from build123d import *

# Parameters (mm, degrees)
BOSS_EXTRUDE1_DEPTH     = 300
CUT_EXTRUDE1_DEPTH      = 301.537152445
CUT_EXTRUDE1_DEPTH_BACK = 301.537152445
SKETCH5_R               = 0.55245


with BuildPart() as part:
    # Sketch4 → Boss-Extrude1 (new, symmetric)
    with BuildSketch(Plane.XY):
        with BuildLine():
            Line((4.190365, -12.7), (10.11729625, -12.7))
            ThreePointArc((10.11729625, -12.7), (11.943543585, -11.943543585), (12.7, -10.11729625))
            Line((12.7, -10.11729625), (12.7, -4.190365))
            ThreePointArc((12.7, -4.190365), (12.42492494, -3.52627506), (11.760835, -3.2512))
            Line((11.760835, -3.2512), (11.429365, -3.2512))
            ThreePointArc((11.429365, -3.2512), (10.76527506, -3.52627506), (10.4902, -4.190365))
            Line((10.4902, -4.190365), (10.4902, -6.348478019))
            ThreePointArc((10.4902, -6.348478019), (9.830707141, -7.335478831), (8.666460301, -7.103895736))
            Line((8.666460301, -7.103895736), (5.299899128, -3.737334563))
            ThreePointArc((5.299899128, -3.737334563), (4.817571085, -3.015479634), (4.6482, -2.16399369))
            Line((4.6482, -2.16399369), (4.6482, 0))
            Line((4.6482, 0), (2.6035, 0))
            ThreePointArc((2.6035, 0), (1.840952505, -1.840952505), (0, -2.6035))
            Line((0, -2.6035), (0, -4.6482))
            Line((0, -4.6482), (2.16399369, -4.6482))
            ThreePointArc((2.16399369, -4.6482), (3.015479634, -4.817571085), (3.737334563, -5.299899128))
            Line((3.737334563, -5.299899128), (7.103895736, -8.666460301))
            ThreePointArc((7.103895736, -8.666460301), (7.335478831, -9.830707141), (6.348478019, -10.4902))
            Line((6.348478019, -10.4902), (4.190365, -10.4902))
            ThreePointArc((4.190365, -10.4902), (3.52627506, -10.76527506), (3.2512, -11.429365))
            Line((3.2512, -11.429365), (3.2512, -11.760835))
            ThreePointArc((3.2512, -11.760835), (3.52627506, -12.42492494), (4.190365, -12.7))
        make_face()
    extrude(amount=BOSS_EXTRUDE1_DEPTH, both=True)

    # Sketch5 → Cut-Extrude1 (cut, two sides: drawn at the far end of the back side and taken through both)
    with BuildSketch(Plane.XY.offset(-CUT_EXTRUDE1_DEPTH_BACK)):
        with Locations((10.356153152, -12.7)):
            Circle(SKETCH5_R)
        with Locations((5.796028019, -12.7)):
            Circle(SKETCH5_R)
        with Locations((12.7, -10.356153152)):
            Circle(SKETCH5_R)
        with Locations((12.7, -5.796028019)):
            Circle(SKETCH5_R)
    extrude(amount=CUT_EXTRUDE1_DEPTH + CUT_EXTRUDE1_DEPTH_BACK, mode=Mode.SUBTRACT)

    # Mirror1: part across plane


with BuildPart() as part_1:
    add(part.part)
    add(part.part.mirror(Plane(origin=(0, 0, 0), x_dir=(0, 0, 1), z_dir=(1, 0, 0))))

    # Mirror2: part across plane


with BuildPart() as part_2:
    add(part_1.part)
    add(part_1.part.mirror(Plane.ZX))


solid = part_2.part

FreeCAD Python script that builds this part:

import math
import FreeCAD as App
import Part
import Sketcher
from FreeCAD import Vector
Q = App.Units.Quantity

doc = App.newDocument("Part")
params = doc.addObject("Spreadsheet::Sheet", "Params")
for row, (alias, value) in enumerate([
    ("pad1_length", "600 mm"),
], start=1):
    params.set(f"A{row}", alias)
    params.set(f"B{row}", "=" + value)
    params.setAlias(f"B{row}", alias)

body = doc.addObject("PartDesign::Body", "Body")

sketch1 = body.newObject("Sketcher::SketchObject", "Sketch")
sketch1.AttachmentSupport = (doc.getObject("XY_Plane"), [""])
sketch1.MapMode = "FlatFace"
sketch1.addGeometry([
    Part.LineSegment(Vector(4.19, -12.7, 0), Vector(10.12, -12.7, 0)),
    Part.ArcOfCircle(Part.Circle(Vector(10.12, -10.12, 0), Vector(0, 0, 1), 2.58), math.radians(-90), math.radians(0)),
    Part.LineSegment(Vector(12.7, -10.12, 0), Vector(12.7, -4.19, 0)),
    Part.ArcOfCircle(Part.Circle(Vector(11.76, -4.19, 0), Vector(0, 0, 1), 0.94), math.radians(0), math.radians(90)),
    Part.LineSegment(Vector(11.76, -3.25, 0), Vector(11.43, -3.25, 0)),
    Part.ArcOfCircle(Part.Circle(Vector(11.43, -4.19, 0), Vector(0, 0, 1), 0.94), math.radians(90), math.radians(180)),
    Part.LineSegment(Vector(10.49, -4.19, 0), Vector(10.49, -6.35, 0)),
    Part.ArcOfCircle(Part.Circle(Vector(9.42, -6.35, 0), Vector(0, 0, 1), 1.07), math.radians(-135), math.radians(0)),
    Part.LineSegment(Vector(8.67, -7.1, 0), Vector(5.3, -3.74, 0)),
    Part.ArcOfCircle(Part.Circle(Vector(6.87, -2.16, 0), Vector(0, 0, 1), 2.23), math.radians(-180), math.radians(-135)),
    Part.LineSegment(Vector(4.65, -2.16, 0), Vector(4.65, 0, 0)),
    Part.LineSegment(Vector(4.65, 0, 0), Vector(2.6, 0, 0)),
    Part.ArcOfCircle(Part.Circle(Vector(0, 0, 0), Vector(0, 0, 1), 2.6), math.radians(-90), math.radians(0)),
    Part.LineSegment(Vector(0, -2.6, 0), Vector(0, -4.65, 0)),
    Part.LineSegment(Vector(0, -4.65, 0), Vector(2.16, -4.65, 0)),
    Part.ArcOfCircle(Part.Circle(Vector(2.16, -6.87, 0), Vector(0, 0, 1), 2.23), math.radians(45), math.radians(90)),
    Part.LineSegment(Vector(3.74, -5.3, 0), Vector(7.1, -8.67, 0)),
    Part.ArcOfCircle(Part.Circle(Vector(6.35, -9.42, 0), Vector(0, 0, 1), 1.07), math.radians(-90), math.radians(45)),
    Part.LineSegment(Vector(6.35, -10.49, 0), Vector(4.19, -10.49, 0)),
    Part.ArcOfCircle(Part.Circle(Vector(4.19, -11.43, 0), Vector(0, 0, 1), 0.94), math.radians(90), math.radians(180)),
    Part.LineSegment(Vector(3.25, -11.43, 0), Vector(3.25, -11.76, 0)),
    Part.ArcOfCircle(Part.Circle(Vector(4.19, -11.76, 0), Vector(0, 0, 1), 0.94), math.radians(-180), math.radians(-90)),
], False)
sketch1.addConstraint([
    Sketcher.Constraint("Tangent", 0, 2, 1, 1),
    Sketcher.Constraint("Tangent", 1, 2, 2, 1),
    Sketcher.Constraint("Tangent", 2, 2, 3, 1),
    Sketcher.Constraint("Tangent", 3, 2, 4, 1),
    Sketcher.Constraint("Tangent", 4, 2, 5, 1),
    Sketcher.Constraint("Tangent", 5, 2, 6, 1),
    Sketcher.Constraint("Tangent", 6, 2, 7, 2),
    Sketcher.Constraint("Tangent", 7, 1, 8, 1),
    Sketcher.Constraint("Tangent", 8, 2, 9, 2),
    Sketcher.Constraint("Tangent", 9, 1, 10, 1),
    Sketcher.Constraint("Coincident", 10, 2, 11, 1),
    Sketcher.Constraint("Coincident", 11, 2, 12, 2),
    Sketcher.Constraint("Coincident", 12, 1, 13, 1),
    Sketcher.Constraint("Coincident", 13, 2, 14, 1),
    Sketcher.Constraint("Tangent", 14, 2, 15, 2),
    Sketcher.Constraint("Tangent", 15, 1, 16, 1),
    Sketcher.Constraint("Tangent", 16, 2, 17, 2),
    Sketcher.Constraint("Tangent", 17, 1, 18, 1),
    Sketcher.Constraint("Tangent", 18, 2, 19, 1),
    Sketcher.Constraint("Tangent", 19, 2, 20, 1),
    Sketcher.Constraint("Tangent", 20, 2, 21, 1),
    Sketcher.Constraint("Tangent", 21, 2, 0, 1),
    Sketcher.Constraint("Horizontal", 0),
    Sketcher.Constraint("Vertical", 2),
    Sketcher.Constraint("Horizontal", 4),
    Sketcher.Constraint("Vertical", 6),
    Sketcher.Constraint("Vertical", 10),
    Sketcher.Constraint("Horizontal", 11),
    Sketcher.Constraint("Vertical", 13),
    Sketcher.Constraint("Horizontal", 14),
    Sketcher.Constraint("Horizontal", 18),
    Sketcher.Constraint("Vertical", 20),
    Sketcher.Constraint("Coincident", 12, 3, -1, 1),
    Sketcher.Constraint("Equal", 3, 5),
    Sketcher.Constraint("Equal", 9, 15),
    Sketcher.Constraint("Equal", 7, 17),
    Sketcher.Constraint("Equal", 5, 19),
    Sketcher.Constraint("Equal", 19, 21),
    Sketcher.Constraint("PointOnObject", 10, 2, -1),
    Sketcher.Constraint("PointOnObject", 12, 1, -2),
    Sketcher.Constraint("Parallel", 8, 16),
    Sketcher.Constraint("Equal", 0, 2),
    Sketcher.Constraint("Equal", 18, 6),
    Sketcher.Constraint("Equal", 14, 10),
    Sketcher.Constraint("Equal", 11, 13),
    Sketcher.Constraint("Equal", 4, 20),
    Sketcher.Constraint("Equal", 8, 16),
    Sketcher.Constraint("DistanceY", 0, 2, -1, 1, Q("12.7 mm")),
    Sketcher.Constraint("Radius", 12, Q("2.6035 mm")),
    Sketcher.Constraint("Radius", 7, Q("1.068322 mm")),
    Sketcher.Constraint("Radius", 9, Q("2.22504 mm")),
    Sketcher.Constraint("DistanceX", 11, 2, 11, 1, Q("2.0447 mm")),
    Sketcher.Constraint("Radius", 1, Q("2.582704 mm")),
    Sketcher.Constraint("Radius", 3, Q("0.939165 mm")),
    Sketcher.Constraint("DistanceX", 9, 1, 5, 2, Q("5.842 mm")),
    Sketcher.Constraint("DistanceX", 0, 1, 0, 2, Q("5.926931 mm")),
    Sketcher.Constraint("DistanceX", 17, 3, 7, 3, Q("3.0734 mm")),
])
pad1 = body.newObject("PartDesign::Pad", "Pad")
pad1.Profile = sketch1
pad1.setExpression("Length", "Params.pad1_length")
pad1.Midplane = True

sketch2 = body.newObject("Sketcher::SketchObject", "Sketch001")
sketch2.AttachmentSupport = (doc.getObject("XY_Plane"), [""])
sketch2.MapMode = "FlatFace"
sketch2.addGeometry([
    Part.Circle(Vector(10.4, -12.7, 0), Vector(0, 0, 1), 0.6),
    Part.Circle(Vector(5.8, -12.7, 0), Vector(0, 0, 1), 0.6),
    Part.Circle(Vector(12.7, -10.4, 0), Vector(0, 0, 1), 0.6),
    Part.Circle(Vector(12.7, -5.8, 0), Vector(0, 0, 1), 0.6),
], False)
sketch2.addConstraint([
    Sketcher.Constraint("Equal", 0, 1),
    Sketcher.Constraint("Equal", 1, 2),
    Sketcher.Constraint("Equal", 2, 3),
    Sketcher.Constraint("Horizontal", 0, 3, 1, 3),
    Sketcher.Constraint("Vertical", 2, 3, 3, 3),
    Sketcher.Constraint("Diameter", 0, Q("1.1049 mm")),
    Sketcher.Constraint("DistanceY", 0, 3, -1, 1, Q("12.7 mm")),
    Sketcher.Constraint("DistanceX", -1, 1, 2, 3, Q("12.7 mm")),
    Sketcher.Constraint("DistanceX", -1, 1, 1, 3, Q("5.796028 mm")),
    Sketcher.Constraint("DistanceY", 3, 3, -1, 1, Q("5.796028 mm")),
    Sketcher.Constraint("DistanceX", -1, 1, 0, 3, Q("10.356153 mm")),
    Sketcher.Constraint("DistanceY", 2, 3, -1, 1, Q("10.356153 mm")),
])
pocket1 = body.newObject("PartDesign::Pocket", "Pocket")
pocket1.Profile = sketch2
pocket1.Type = "ThroughAll"
pocket1.Midplane = True
body2 = doc.addObject("PartDesign::Body", "Body001")
doc.recompute()

body2.BaseFeature = body
doc.recompute()

mirroring = doc.addObject("Part::Mirroring", "Mirroring")
mirroring.Source = body
mirroring.Base = Vector(0, 0, 0)
mirroring.Normal = Vector(1, 0, 0)
body3 = doc.addObject("PartDesign::Body", "Body002")
body3.BaseFeature = mirroring
boolean = body2.newObject("PartDesign::Boolean", "Boolean")
boolean.Type = "Fuse"
boolean.addObjects([body3])
doc.recompute()
body4 = doc.addObject("PartDesign::Body", "Body003")
doc.recompute()

body4.BaseFeature = body2
doc.recompute()

mirroring2 = doc.addObject("Part::Mirroring", "Mirroring001")
mirroring2.Source = body2
mirroring2.Base = Vector(0, 0, 0)
mirroring2.Normal = Vector(0, 1, 0)
body5 = doc.addObject("PartDesign::Body", "Body004")
body5.BaseFeature = mirroring2
boolean2 = body4.newObject("PartDesign::Boolean", "Boolean001")
boolean2.Type = "Fuse"
boolean2.addObjects([body5])
doc.recompute()
mirroring.Visibility = False
mirroring2.Visibility = False

doc.recompute()
